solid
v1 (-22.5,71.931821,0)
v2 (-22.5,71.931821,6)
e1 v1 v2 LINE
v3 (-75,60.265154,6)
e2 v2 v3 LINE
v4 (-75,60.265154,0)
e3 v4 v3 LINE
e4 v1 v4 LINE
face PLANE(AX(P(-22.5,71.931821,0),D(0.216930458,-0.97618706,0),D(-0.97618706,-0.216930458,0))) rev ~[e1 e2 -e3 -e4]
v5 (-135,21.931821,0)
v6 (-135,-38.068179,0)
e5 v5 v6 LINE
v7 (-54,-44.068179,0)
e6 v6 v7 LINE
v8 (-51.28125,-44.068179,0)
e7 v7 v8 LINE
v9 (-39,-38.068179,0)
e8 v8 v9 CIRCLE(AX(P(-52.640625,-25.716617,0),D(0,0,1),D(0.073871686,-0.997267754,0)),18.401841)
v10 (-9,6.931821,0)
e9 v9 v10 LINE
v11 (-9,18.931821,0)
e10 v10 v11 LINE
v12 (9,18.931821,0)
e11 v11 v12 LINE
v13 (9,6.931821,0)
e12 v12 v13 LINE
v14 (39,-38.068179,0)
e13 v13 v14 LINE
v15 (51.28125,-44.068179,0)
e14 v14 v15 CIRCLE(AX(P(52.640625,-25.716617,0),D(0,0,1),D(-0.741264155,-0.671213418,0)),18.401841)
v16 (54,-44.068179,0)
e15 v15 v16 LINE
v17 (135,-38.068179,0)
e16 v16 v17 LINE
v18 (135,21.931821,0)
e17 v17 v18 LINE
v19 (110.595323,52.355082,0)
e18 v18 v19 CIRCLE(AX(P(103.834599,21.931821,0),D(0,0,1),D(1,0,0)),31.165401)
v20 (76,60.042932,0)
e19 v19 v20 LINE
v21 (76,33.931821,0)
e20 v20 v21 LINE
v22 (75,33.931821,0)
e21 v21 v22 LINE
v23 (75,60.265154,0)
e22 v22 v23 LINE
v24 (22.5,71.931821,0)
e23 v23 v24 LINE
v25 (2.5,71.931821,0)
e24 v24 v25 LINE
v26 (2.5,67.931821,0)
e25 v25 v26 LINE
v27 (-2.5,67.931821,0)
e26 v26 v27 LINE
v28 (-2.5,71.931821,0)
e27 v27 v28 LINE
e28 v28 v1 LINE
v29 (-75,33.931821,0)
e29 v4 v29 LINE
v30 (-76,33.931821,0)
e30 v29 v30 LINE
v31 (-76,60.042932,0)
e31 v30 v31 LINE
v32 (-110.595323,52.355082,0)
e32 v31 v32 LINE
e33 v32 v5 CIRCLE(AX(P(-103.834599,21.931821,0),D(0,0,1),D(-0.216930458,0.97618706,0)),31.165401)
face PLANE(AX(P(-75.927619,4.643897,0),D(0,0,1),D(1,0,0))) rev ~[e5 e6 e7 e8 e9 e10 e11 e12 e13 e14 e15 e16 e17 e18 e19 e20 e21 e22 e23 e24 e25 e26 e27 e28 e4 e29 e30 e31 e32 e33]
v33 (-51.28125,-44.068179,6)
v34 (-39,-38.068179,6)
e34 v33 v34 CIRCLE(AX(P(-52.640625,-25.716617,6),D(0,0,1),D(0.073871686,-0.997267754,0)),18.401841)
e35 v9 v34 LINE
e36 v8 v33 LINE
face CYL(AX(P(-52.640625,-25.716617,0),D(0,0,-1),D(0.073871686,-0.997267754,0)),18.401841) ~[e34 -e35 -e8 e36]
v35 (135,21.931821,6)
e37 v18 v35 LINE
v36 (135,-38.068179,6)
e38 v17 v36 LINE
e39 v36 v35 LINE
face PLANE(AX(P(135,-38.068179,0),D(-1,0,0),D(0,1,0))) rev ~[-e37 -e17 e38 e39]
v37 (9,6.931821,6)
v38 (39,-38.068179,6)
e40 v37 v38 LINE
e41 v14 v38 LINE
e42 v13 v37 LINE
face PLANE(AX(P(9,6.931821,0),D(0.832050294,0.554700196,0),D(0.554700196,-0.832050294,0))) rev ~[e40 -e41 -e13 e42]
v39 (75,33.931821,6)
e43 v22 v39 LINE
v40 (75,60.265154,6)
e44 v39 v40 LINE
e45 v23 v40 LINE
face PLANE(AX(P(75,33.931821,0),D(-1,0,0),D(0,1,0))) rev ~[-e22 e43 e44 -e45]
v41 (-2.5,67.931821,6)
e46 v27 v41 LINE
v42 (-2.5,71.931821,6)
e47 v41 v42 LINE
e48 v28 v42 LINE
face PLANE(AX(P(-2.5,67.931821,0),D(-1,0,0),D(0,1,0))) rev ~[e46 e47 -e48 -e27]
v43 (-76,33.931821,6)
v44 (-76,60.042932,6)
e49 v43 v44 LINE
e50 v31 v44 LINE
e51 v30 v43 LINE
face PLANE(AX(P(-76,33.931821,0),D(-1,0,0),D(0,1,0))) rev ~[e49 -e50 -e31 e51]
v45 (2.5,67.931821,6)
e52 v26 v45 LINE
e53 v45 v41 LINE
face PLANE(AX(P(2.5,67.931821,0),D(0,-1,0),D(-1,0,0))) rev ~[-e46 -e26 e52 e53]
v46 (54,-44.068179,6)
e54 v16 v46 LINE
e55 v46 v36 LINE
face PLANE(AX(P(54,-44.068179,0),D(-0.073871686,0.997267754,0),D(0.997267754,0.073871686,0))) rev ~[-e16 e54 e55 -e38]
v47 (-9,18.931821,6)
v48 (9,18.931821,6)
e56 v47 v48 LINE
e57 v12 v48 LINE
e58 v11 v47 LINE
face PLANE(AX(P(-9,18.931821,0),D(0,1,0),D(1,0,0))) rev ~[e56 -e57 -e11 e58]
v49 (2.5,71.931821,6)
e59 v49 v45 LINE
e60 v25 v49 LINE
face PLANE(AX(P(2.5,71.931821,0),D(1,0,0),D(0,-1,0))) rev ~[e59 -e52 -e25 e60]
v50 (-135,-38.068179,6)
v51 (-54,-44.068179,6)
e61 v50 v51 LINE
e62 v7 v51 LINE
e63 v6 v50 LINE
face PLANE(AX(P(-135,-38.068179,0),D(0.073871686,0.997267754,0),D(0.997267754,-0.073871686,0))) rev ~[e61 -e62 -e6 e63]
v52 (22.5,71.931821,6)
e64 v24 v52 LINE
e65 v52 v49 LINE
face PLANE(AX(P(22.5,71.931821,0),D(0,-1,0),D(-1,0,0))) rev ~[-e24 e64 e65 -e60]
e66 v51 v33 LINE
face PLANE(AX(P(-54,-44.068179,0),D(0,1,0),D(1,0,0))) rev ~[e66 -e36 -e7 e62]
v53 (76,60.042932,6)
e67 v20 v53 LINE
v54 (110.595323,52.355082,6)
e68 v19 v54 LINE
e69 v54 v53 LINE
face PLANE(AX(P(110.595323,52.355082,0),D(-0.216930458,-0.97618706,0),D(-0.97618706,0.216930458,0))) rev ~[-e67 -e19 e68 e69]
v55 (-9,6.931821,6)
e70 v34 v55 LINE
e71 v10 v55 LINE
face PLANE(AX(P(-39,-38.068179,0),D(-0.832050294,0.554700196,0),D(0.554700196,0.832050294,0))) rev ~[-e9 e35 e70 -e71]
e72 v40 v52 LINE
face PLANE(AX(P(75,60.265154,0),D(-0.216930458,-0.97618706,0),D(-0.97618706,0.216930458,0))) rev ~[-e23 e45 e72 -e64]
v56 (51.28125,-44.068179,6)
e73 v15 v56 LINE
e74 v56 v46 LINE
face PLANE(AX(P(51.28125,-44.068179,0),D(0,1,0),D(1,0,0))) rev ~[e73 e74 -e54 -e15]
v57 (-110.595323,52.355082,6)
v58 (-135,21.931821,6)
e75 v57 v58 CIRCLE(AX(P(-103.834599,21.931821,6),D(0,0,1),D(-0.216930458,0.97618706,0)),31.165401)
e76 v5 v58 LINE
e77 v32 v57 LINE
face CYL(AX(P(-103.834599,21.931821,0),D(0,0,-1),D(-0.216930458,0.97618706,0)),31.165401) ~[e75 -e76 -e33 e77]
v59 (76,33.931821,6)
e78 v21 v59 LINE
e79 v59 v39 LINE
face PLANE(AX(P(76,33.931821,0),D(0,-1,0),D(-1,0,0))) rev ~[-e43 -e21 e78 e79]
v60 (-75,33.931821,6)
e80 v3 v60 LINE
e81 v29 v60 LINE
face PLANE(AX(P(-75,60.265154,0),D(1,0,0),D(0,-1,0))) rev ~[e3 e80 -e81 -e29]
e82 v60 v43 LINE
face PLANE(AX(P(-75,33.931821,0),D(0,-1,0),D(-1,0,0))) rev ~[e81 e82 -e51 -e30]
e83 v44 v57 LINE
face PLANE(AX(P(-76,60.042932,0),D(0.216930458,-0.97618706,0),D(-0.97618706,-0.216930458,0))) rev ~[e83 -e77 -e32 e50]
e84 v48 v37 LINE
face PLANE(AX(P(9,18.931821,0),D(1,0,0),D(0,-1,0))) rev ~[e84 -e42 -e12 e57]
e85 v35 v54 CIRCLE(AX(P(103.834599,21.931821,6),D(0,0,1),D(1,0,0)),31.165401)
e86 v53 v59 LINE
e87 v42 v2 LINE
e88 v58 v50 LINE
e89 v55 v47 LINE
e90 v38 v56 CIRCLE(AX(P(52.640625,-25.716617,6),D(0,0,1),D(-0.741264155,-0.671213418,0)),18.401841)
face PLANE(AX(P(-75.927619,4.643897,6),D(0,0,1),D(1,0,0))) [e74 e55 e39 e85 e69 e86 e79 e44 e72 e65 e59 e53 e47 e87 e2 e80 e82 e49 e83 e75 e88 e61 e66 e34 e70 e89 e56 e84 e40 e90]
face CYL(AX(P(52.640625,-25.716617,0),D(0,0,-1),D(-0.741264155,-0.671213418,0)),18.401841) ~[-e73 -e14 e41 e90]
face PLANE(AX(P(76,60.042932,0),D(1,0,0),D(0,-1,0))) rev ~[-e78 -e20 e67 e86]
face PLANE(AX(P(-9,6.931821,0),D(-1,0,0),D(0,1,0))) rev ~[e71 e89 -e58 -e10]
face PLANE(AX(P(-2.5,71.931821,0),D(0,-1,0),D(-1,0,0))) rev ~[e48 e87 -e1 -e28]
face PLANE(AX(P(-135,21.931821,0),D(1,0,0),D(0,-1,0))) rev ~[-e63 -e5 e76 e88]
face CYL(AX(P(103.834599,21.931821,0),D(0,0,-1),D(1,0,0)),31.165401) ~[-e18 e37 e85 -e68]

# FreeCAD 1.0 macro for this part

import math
import FreeCAD as App
import Part
import Sketcher
from FreeCAD import Vector

doc = App.newDocument("Part")
body = doc.addObject("PartDesign::Body", "Body")

# Sketch on XY plane
sketch1 = body.newObject("Sketcher::SketchObject", "Sketch")
sketch1.AttachmentSupport = (doc.getObject("XY_Plane"), [""])
sketch1.MapMode = "FlatFace"
sketch1.addGeometry(Part.LineSegment(Vector(-135, 21.9, 0), Vector(-135, -38.1, 0)), False)
sketch1.addGeometry(Part.LineSegment(Vector(-135, -38.1, 0), Vector(-54, -44.1, 0)), False)
sketch1.addGeometry(Part.LineSegment(Vector(-54, -44.1, 0), Vector(-51.3, -44.1, 0)), False)
sketch1.addGeometry(Part.ArcOfCircle(Part.Circle(Vector(-52.6, -25.7, 0), Vector(0, 0, 1), 18.4), math.radians(-86), math.radians(-42)), False)
sketch1.addGeometry(Part.LineSegment(Vector(-39, -38.1, 0), Vector(-9, 6.9, 0)), False)
sketch1.addGeometry(Part.LineSegment(Vector(-9, 6.9, 0), Vector(-9, 18.9, 0)), False)
sketch1.addGeometry(Part.LineSegment(Vector(-9, 18.9, 0), Vector(9, 18.9, 0)), False)
sketch1.addGeometry(Part.LineSegment(Vector(9, 18.9, 0), Vector(9, 6.9, 0)), False)
sketch1.addGeometry(Part.LineSegment(Vector(9, 6.9, 0), Vector(39, -38.1, 0)), False)
sketch1.addGeometry(Part.ArcOfCircle(Part.Circle(Vector(52.6, -25.7, 0), Vector(0, 0, 1), 18.4), math.radians(-138), math.radians(-94)), False)
sketch1.addGeometry(Part.LineSegment(Vector(51.3, -44.1, 0), Vector(54, -44.1, 0)), False)
sketch1.addGeometry(Part.LineSegment(Vector(54, -44.1, 0), Vector(135, -38.1, 0)), False)
sketch1.addGeometry(Part.LineSegment(Vector(135, -38.1, 0), Vector(135, 21.9, 0)), False)
sketch1.addGeometry(Part.ArcOfCircle(Part.Circle(Vector(103.8, 21.9, 0), Vector(0, 0, 1), 31.2), math.radians(0), math.radians(77)), False)
sketch1.addGeometry(Part.LineSegment(Vector(110.6, 52.4, 0), Vector(76, 60, 0)), False)
sketch1.addGeometry(Part.LineSegment(Vector(76, 60, 0), Vector(76, 33.9, 0)), False)
sketch1.addGeometry(Part.LineSegment(Vector(76, 33.9, 0), Vector(75, 33.9, 0)), False)
sketch1.addGeometry(Part.LineSegment(Vector(75, 33.9, 0), Vector(75, 60.3, 0)), False)
sketch1.addGeometry(Part.LineSegment(Vector(75, 60.3, 0), Vector(22.5, 71.9, 0)), False)
sketch1.addGeometry(Part.LineSegment(Vector(22.5, 71.9, 0), Vector(2.5, 71.9, 0)), False)
sketch1.addGeometry(Part.LineSegment(Vector(2.5, 71.9, 0), Vector(2.5, 67.9, 0)), False)
sketch1.addGeometry(Part.LineSegment(Vector(2.5, 67.9, 0), Vector(-2.5, 67.9, 0)), False)
sketch1.addGeometry(Part.LineSegment(Vector(-2.5, 67.9, 0), Vector(-2.5, 71.9, 0)), False)
sketch1.addGeometry(Part.LineSegment(Vector(-2.5, 71.9, 0), Vector(-22.5, 71.9, 0)), False)
sketch1.addGeometry(Part.LineSegment(Vector(-22.5, 71.9, 0), Vector(-75, 60.3, 0)), False)
sketch1.addGeometry(Part.LineSegment(Vector(-75, 60.3, 0), Vector(-75, 33.9, 0)), False)
sketch1.addGeometry(Part.LineSegment(Vector(-75, 33.9, 0), Vector(-76, 33.9, 0)), False)
sketch1.addGeometry(Part.LineSegment(Vector(-76, 33.9, 0), Vector(-76, 60, 0)), False)
sketch1.addGeometry(Part.LineSegment(Vector(-76, 60, 0), Vector(-110.6, 52.4, 0)), False)
sketch1.addGeometry(Part.ArcOfCircle(Part.Circle(Vector(-103.8, 21.9, 0), Vector(0, 0, 1), 31.2), math.radians(103), math.radians(180)), False)
sketch1.addConstraint(Sketcher.Constraint("Coincident", 0, 2, 1, 1))
sketch1.addConstraint(Sketcher.Constraint("Coincident", 1, 2, 2, 1))
sketch1.addConstraint(Sketcher.Constraint("Coincident", 2, 2, 3, 1))
sketch1.addConstraint(Sketcher.Constraint("Coincident", 3, 2, 4, 1))
sketch1.addConstraint(Sketcher.Constraint("Coincident", 4, 2, 5, 1))
sketch1.addConstraint(Sketcher.Constraint("Coincident", 5, 2, 6, 1))
sketch1.addConstraint(Sketcher.Constraint("Coincident", 6, 2, 7, 1))
sketch1.addConstraint(Sketcher.Constraint("Coincident", 7, 2, 8, 1))
sketch1.addConstraint(Sketcher.Constraint("Coincident", 8, 2, 9, 1))
sketch1.addConstraint(Sketcher.Constraint("Coincident", 9, 2, 10, 1))
sketch1.addConstraint(Sketcher.Constraint("Coincident", 10, 2, 11, 1))
sketch1.addConstraint(Sketcher.Constraint("Coincident", 11, 2, 12, 1))
sketch1.addConstraint(Sketcher.Constraint("Tangent", 12, 2, 13, 1))
sketch1.addConstraint(Sketcher.Constraint("Tangent", 13, 2, 14, 1))
sketch1.addConstraint(Sketcher.Constraint("Coincident", 14, 2, 15, 1))
sketch1.addConstraint(Sketcher.Constraint("Coincident", 15, 2, 16, 1))
sketch1.addConstraint(Sketcher.Constraint("Coincident", 16, 2, 17, 1))
sketch1.addConstraint(Sketcher.Constraint("Coincident", 17, 2, 18, 1))
sketch1.addConstraint(Sketcher.Constraint("Coincident", 18, 2, 19, 1))
sketch1.addConstraint(Sketcher.Constraint("Coincident", 19, 2, 20, 1))
sketch1.addConstraint(Sketcher.Constraint("Coincident", 20, 2, 21, 1))
sketch1.addConstraint(Sketcher.Constraint("Coincident", 21, 2, 22, 1))
sketch1.addConstraint(Sketcher.Constraint("Coincident", 22, 2, 23, 1))
sketch1.addConstraint(Sketcher.Constraint("Coincident", 23, 2, 24, 1))
sketch1.addConstraint(Sketcher.Constraint("Coincident", 24, 2, 25, 1))
sketch1.addConstraint(Sketcher.Constraint("Coincident", 25, 2, 26, 1))
sketch1.addConstraint(Sketcher.Constraint("Coincident", 26, 2, 27, 1))
sketch1.addConstraint(Sketcher.Constraint("Coincident", 27, 2, 28, 1))
sketch1.addConstraint(Sketcher.Constraint("Tangent", 28, 2, 29, 1))
sketch1.addConstraint(Sketcher.Constraint("Tangent", 29, 2, 0, 1))
sketch1.addConstraint(Sketcher.Constraint("Vertical", 0))
sketch1.addConstraint(Sketcher.Constraint("Horizontal", 2))
sketch1.addConstraint(Sketcher.Constraint("Vertical", 5))
sketch1.addConstraint(Sketcher.Constraint("Horizontal", 6))
sketch1.addConstraint(Sketcher.Constraint("Vertical", 7))
sketch1.addConstraint(Sketcher.Constraint("Horizontal", 10))
sketch1.addConstraint(Sketcher.Constraint("Vertical", 12))
sketch1.addConstraint(Sketcher.Constraint("Vertical", 15))
sketch1.addConstraint(Sketcher.Constraint("Horizontal", 16))
sketch1.addConstraint(Sketcher.Constraint("Vertical", 17))
sketch1.addConstraint(Sketcher.Constraint("Horizontal", 19))
sketch1.addConstraint(Sketcher.Constraint("Vertical", 20))
sketch1.addConstraint(Sketcher.Constraint("Horizontal", 21))
sketch1.addConstraint(Sketcher.Constraint("Vertical", 22))
sketch1.addConstraint(Sketcher.Constraint("Horizontal", 23))
sketch1.addConstraint(Sketcher.Constraint("Vertical", 25))
sketch1.addConstraint(Sketcher.Constraint("Horizontal", 26))
sketch1.addConstraint(Sketcher.Constraint("Vertical", 27))
sketch1.addConstraint(Sketcher.Constraint("Equal", 3, 9))
sketch1.addConstraint(Sketcher.Constraint("Equal", 13, 29))
sketch1.addConstraint(Sketcher.Constraint("Symmetric", 3, 3, 9, 3, -2))
sketch1.addConstraint(Sketcher.Constraint("Symmetric", 13, 3, 29, 3, -2))
sketch1.addConstraint(Sketcher.Constraint("Symmetric", 4, 2, 7, 2, -2))
sketch1.addConstraint(Sketcher.Constraint("Symmetric", 1, 2, 10, 2, -2))
sketch1.addConstraint(Sketcher.Constraint("Symmetric", 19, 2, 22, 2, -2))
sketch1.addConstraint(Sketcher.Constraint("Symmetric", 17, 2, 24, 2, -2))
sketch1.addConstraint(Sketcher.Constraint("Symmetric", 15, 2, 26, 2, -2))
sketch1.addConstraint(Sketcher.Constraint("Parallel", 14, 18))
sketch1.addConstraint(Sketcher.Constraint("Parallel", 24, 28))
sketch1.addConstraint(Sketcher.Constraint("Horizontal", 0, 2, 3, 2))
sketch1.addConstraint(Sketcher.Constraint("Horizontal", 3, 2, 8, 2))
sketch1.addConstraint(Sketcher.Constraint("Horizontal", 8, 2, 11, 2))
sketch1.addConstraint(Sketcher.Constraint("Horizontal", 14, 2, 27, 2))
sketch1.addConstraint(Sketcher.Constraint("DistanceX", 6, 1, 6, 2, 18.0))
sketch1.addConstraint(Sketcher.Constraint("DistanceX", 16, 2, 16, 1, 1.0))
sketch1.addConstraint(Sketcher.Constraint("DistanceX", 19, 2, 19, 1, 20.0))
sketch1.addConstraint(Sketcher.Constraint("DistanceX", 21, 2, 21, 1, 5.0))
sketch1.addConstraint(Sketcher.Constraint("DistanceY", 0, 2, 0, 1, 60.0))
sketch1.addConstraint(Sketcher.Constraint("DistanceY", 5, 1, 5, 2, 12.0))
sketch1.addConstraint(Sketcher.Constraint("DistanceY", 20, 2, 20, 1, 4.0))
sketch1.addConstraint(Sketcher.Constraint("DistanceX", 0, 2, -1, 1, 135.0))
sketch1.addConstraint(Sketcher.Constraint("DistanceX", 1, 2, -1, 1, 54.0))
sketch1.addConstraint(Sketcher.Constraint("DistanceX", 3, 2, -1, 1, 39.0))
sketch1.addConstraint(Sketcher.Constraint("DistanceX", -1, 1, 14, 2, 76.0))
sketch1.addConstraint(Sketcher.Constraint("DistanceY", 1, 2, 0, 2, 6.0))
sketch1.addConstraint(Sketcher.Constraint("DistanceY", 3, 2, 4, 2, 45.0))
sketch1.addConstraint(Sketcher.Constraint("DistanceY", 13, 3, 15, 2, 12.0))
sketch1.addConstraint(Sketcher.Constraint("DistanceY", 6, 2, 18, 2, 53.0))
sketch1.addConstraint(Sketcher.Constraint("Radius", 13, 31.165401))
sketch1.addConstraint(Sketcher.Constraint("Radius", 3, 18.401841))
sketch1.addConstraint(Sketcher.Constraint("DistanceX", 2, 1, 2, 2, 2.71875))
sketch1.addConstraint(Sketcher.Constraint("DistanceY", 15, 2, 15, 1, 26.111111))
sketch1.addConstraint(Sketcher.Constraint("DistanceY", -1, 1, 13, 3, 21.931821))
pad1 = body.newObject("PartDesign::Pad", "Pad")
pad1.Profile = sketch1
pad1.Length = 6

doc.recompute()
